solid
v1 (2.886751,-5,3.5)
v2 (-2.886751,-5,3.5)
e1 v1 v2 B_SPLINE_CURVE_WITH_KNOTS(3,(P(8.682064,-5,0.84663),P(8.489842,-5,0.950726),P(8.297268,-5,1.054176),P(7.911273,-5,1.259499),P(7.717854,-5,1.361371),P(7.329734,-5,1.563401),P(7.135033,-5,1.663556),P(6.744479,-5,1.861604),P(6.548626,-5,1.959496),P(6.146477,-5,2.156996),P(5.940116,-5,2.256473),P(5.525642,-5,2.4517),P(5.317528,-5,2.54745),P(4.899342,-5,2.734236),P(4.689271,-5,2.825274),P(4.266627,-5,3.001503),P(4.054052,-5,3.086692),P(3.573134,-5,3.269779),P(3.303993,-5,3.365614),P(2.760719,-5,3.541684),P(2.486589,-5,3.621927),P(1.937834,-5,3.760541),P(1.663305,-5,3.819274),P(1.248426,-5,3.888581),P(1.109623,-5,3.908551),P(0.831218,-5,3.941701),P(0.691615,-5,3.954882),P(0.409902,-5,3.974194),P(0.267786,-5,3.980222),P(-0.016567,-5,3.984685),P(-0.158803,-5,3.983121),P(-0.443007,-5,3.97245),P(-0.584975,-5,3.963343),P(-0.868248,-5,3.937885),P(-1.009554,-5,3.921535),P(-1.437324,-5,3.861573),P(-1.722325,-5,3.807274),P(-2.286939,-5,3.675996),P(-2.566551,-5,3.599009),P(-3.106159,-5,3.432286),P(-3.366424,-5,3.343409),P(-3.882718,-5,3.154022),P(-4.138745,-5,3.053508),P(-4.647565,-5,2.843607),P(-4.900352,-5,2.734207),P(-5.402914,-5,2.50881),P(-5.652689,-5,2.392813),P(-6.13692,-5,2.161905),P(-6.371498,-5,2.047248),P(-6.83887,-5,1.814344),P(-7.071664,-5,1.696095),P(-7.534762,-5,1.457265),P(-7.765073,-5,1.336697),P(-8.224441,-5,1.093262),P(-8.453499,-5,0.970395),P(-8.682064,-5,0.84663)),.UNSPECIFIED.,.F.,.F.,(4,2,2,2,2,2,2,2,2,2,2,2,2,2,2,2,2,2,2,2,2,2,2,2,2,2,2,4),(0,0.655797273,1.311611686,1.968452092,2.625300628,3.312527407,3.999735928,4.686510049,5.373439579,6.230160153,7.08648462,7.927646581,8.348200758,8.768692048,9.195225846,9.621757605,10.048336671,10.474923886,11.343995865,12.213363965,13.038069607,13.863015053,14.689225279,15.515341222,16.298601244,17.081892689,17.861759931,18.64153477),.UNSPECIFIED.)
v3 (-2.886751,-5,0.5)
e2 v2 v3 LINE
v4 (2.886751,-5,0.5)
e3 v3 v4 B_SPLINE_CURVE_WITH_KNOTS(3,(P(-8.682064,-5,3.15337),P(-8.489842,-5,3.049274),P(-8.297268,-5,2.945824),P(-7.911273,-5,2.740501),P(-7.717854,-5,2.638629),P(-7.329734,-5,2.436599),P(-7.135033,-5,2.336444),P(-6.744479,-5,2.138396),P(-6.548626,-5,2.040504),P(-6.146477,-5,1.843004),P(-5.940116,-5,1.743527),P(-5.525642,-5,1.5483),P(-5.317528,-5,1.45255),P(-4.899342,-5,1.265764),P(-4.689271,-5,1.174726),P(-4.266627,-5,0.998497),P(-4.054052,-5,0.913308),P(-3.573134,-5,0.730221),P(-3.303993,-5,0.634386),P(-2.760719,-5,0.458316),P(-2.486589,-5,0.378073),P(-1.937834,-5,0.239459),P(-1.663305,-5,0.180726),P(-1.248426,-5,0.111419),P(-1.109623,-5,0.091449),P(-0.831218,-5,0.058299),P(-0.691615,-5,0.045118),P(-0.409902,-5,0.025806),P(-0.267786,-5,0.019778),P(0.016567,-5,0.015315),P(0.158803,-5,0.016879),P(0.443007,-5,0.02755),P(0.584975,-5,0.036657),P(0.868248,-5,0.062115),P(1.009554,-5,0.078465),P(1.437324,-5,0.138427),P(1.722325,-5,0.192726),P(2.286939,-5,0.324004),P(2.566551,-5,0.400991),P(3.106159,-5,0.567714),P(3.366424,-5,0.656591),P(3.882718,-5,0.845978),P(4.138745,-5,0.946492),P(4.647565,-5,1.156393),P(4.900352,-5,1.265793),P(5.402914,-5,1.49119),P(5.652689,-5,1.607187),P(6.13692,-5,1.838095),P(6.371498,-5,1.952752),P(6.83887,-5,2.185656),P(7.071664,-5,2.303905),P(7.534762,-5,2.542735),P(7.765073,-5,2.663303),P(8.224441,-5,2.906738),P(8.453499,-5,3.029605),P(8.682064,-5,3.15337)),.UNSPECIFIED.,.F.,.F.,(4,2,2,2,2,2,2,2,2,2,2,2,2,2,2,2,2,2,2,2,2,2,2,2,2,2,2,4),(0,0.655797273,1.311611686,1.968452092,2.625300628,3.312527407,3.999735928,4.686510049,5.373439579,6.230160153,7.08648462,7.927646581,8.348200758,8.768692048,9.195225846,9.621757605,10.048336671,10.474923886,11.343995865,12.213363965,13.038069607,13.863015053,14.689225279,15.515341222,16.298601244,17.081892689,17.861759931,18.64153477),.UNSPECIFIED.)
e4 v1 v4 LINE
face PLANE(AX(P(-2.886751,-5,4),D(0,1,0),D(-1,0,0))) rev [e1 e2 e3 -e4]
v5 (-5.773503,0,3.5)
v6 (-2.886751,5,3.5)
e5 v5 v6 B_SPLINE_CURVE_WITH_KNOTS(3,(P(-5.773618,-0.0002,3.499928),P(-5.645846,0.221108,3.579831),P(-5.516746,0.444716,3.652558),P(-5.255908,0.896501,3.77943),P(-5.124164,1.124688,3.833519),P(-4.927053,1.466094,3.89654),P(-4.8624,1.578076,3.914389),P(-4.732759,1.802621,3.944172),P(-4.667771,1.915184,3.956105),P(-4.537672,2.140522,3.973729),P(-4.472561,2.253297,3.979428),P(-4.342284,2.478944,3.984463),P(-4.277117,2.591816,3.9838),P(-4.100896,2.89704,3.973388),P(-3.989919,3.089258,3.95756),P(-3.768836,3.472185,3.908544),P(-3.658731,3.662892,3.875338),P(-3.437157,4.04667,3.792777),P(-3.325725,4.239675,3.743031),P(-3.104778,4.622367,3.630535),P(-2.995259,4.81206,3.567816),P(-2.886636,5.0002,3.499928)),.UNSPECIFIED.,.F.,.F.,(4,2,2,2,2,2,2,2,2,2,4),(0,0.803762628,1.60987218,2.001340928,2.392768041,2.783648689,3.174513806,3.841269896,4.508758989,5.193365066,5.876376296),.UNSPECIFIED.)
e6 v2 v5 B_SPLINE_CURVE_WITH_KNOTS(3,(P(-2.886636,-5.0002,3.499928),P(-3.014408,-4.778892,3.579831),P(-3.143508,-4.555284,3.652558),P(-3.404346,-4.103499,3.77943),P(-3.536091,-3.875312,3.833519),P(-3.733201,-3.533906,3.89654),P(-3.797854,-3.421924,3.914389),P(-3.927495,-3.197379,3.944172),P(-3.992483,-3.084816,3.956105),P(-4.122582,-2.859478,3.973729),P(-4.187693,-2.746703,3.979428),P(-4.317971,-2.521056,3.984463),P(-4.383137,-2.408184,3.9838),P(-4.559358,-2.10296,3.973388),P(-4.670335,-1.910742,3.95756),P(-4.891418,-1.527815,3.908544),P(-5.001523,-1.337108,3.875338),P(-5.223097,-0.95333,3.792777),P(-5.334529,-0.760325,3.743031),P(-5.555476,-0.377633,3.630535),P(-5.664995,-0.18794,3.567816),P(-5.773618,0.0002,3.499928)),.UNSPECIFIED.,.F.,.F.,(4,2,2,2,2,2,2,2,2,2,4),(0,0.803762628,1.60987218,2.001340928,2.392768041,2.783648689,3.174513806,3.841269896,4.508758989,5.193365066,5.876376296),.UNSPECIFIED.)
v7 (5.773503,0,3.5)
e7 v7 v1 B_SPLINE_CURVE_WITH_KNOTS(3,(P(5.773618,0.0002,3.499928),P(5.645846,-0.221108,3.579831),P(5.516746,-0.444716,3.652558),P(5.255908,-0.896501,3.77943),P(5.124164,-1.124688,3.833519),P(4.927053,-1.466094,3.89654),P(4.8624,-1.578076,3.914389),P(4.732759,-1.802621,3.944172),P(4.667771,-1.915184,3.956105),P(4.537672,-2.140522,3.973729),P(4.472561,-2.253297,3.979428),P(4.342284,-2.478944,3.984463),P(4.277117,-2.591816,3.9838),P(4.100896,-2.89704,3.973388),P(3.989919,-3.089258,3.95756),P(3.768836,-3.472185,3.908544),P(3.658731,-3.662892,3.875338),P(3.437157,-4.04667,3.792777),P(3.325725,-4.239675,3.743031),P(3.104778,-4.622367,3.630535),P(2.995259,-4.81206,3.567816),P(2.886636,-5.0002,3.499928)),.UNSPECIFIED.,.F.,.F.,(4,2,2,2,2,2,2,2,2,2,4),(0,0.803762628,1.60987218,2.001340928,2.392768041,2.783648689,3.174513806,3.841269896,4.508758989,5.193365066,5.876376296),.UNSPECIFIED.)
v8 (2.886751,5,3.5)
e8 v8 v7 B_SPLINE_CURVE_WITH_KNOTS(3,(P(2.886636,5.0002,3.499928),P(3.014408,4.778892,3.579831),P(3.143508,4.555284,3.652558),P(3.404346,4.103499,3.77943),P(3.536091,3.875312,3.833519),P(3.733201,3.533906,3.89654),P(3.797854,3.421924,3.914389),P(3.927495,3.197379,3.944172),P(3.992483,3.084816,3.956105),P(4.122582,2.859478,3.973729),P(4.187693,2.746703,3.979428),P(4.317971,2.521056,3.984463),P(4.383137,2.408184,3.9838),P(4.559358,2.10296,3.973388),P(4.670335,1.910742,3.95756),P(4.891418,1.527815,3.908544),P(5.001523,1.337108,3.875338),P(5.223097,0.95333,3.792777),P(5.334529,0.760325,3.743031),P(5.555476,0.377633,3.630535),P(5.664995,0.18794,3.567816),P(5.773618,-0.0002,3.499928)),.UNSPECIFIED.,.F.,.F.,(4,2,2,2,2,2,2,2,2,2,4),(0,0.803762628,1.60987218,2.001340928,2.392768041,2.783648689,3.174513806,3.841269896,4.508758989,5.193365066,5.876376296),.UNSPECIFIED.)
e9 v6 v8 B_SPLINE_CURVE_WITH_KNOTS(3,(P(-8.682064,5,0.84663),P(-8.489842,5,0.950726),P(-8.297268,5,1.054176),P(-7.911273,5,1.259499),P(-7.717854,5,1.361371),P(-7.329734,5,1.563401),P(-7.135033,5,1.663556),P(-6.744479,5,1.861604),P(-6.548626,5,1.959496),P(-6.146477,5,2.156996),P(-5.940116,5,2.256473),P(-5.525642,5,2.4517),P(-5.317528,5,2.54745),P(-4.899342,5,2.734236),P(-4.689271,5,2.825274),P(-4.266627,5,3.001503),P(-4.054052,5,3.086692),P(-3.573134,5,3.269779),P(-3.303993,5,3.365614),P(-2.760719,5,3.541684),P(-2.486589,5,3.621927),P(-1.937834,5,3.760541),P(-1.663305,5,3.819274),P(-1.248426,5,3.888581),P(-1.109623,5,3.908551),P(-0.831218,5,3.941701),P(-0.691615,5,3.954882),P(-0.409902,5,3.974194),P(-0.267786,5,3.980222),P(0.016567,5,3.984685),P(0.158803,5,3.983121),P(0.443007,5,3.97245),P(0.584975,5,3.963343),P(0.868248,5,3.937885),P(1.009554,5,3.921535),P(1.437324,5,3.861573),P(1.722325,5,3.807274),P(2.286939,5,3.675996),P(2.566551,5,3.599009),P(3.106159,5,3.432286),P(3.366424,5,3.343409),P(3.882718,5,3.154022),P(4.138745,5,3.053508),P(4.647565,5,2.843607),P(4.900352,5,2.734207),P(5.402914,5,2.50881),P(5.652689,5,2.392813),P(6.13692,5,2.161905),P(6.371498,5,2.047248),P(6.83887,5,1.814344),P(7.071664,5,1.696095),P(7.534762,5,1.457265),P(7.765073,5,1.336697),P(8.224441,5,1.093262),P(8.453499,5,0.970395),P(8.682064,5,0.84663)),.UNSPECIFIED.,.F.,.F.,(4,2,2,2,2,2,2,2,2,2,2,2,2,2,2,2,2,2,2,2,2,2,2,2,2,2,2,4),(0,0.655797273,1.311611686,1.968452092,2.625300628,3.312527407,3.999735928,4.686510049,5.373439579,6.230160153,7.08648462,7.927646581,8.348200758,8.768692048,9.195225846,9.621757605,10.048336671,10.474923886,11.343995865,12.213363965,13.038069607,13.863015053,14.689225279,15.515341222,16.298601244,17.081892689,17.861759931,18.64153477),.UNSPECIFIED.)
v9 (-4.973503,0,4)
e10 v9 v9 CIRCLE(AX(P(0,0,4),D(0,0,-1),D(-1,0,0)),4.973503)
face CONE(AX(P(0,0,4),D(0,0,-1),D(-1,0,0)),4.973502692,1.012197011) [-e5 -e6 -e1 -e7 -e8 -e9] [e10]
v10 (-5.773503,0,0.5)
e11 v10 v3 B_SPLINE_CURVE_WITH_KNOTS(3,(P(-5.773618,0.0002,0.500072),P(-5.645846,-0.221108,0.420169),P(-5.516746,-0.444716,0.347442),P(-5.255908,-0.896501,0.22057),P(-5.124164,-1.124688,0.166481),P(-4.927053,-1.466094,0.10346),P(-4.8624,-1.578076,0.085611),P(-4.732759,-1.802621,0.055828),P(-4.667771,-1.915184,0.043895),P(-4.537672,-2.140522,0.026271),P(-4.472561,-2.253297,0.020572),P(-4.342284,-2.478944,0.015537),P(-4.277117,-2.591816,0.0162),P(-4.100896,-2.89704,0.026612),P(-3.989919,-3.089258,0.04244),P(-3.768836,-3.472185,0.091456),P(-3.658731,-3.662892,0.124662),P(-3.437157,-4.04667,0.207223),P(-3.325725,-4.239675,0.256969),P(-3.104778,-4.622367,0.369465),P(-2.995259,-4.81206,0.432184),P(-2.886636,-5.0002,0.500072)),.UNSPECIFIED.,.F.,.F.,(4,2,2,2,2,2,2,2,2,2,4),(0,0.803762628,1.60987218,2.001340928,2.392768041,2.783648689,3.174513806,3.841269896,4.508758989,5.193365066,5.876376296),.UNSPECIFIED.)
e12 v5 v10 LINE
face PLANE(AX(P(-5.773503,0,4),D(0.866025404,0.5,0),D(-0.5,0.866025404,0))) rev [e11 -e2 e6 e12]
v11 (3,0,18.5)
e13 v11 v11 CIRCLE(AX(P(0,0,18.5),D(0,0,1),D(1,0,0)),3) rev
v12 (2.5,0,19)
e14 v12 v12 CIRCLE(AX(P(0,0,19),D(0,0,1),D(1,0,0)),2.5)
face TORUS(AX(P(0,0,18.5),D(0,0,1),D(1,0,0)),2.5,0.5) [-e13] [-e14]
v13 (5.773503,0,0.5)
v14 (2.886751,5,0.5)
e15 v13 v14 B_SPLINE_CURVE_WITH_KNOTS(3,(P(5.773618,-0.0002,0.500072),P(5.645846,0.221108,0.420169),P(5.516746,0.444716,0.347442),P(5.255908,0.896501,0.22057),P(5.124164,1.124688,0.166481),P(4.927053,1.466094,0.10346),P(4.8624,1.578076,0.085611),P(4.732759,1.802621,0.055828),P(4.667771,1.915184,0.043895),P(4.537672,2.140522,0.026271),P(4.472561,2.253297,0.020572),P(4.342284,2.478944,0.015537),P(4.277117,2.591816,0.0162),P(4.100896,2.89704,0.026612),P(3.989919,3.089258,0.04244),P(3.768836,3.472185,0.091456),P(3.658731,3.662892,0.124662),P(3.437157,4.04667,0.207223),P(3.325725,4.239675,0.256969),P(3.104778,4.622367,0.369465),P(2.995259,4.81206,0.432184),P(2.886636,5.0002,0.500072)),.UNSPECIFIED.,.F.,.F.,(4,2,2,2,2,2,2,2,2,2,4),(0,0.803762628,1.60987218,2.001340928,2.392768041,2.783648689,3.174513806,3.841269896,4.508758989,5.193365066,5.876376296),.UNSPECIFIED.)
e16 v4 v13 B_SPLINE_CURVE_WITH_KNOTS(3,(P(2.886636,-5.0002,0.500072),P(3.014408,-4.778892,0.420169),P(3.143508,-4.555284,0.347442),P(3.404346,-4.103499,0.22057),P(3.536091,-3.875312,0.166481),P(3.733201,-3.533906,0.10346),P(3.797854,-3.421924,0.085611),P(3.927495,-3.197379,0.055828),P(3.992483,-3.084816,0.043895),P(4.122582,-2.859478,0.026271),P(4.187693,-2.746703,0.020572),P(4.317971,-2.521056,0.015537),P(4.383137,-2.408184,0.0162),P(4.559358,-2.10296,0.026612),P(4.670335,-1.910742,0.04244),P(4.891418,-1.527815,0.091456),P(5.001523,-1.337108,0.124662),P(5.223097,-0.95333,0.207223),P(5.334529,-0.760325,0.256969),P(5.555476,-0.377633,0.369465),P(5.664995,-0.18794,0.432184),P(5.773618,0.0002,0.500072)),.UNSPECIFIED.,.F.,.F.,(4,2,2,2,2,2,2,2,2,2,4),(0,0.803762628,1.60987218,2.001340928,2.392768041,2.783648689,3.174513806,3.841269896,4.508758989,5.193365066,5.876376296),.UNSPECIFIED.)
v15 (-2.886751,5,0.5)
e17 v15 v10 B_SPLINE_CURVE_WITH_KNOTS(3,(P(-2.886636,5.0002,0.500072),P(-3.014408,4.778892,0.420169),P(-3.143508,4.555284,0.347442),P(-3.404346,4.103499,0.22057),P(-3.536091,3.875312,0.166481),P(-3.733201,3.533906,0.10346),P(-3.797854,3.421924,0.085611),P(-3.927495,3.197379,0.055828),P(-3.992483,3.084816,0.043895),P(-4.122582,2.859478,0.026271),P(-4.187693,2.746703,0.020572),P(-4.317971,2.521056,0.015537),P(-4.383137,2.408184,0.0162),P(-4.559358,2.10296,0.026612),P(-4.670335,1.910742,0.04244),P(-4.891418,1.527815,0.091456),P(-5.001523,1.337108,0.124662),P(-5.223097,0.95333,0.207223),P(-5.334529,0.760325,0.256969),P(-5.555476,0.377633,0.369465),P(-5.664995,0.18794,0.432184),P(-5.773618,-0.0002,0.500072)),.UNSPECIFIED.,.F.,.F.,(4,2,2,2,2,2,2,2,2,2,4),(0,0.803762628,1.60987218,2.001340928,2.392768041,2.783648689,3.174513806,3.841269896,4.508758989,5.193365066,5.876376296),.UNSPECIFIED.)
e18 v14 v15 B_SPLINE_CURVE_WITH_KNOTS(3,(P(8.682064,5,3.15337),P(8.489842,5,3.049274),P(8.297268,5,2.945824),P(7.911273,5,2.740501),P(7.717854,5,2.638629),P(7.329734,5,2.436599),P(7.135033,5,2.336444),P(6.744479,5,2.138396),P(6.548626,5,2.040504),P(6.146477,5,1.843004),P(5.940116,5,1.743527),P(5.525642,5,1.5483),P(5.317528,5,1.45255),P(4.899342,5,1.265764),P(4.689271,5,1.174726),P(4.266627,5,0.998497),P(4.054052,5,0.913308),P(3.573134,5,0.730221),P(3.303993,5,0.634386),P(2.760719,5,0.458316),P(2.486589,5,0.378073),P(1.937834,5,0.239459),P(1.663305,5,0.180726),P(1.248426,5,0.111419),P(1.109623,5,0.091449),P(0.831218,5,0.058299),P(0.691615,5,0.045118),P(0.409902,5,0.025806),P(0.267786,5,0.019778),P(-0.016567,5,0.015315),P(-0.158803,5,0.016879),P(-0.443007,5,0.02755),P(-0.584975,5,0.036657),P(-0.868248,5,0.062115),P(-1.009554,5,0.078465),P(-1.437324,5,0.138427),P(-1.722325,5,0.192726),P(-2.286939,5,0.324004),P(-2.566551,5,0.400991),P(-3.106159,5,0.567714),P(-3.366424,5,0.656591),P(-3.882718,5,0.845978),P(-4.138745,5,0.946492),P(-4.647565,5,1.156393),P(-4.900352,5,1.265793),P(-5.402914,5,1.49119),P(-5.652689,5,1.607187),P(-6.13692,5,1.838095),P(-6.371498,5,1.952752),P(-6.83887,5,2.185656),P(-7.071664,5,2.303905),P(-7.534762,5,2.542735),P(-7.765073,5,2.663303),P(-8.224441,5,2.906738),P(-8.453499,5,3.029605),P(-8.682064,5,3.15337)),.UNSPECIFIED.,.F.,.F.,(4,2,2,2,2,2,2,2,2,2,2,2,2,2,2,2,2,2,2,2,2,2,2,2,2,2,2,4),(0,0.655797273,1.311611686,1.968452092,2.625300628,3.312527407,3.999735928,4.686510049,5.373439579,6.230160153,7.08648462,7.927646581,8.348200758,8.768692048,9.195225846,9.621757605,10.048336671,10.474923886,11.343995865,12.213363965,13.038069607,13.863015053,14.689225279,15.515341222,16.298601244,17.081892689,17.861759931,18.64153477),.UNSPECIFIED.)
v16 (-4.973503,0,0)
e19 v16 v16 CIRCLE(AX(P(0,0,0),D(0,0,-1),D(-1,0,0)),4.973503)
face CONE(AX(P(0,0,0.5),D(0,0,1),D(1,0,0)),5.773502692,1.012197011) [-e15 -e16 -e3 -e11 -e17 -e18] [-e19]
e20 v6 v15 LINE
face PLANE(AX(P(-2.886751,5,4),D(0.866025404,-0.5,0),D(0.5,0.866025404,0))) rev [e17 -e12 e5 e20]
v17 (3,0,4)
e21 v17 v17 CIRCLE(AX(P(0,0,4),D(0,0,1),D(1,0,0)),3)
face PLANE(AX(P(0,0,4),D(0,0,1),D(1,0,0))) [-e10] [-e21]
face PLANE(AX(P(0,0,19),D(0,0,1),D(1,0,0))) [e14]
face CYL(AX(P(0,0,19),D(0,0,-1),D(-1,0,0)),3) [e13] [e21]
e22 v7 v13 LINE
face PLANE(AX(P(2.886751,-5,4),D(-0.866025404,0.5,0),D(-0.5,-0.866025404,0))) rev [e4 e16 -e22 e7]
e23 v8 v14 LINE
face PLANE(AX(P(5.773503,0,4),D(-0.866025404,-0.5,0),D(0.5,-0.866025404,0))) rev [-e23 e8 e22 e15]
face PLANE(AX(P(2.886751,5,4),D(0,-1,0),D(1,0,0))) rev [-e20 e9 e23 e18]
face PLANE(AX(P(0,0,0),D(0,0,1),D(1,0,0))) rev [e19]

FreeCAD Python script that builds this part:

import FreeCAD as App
import Part
import Sketcher
Q = App.Units.Quantity


def edges_at(feature, points):
    """Names of the edges that pass closest to the given points."""
    edges = feature.Shape.Edges
    near = lambda p: min(range(len(edges)), key=lambda i: edges[i].distToShape(Part.Vertex(*p))[0])
    return sorted({f"Edge{near(p) + 1}" for p in points})


def add_polygon(sketch, points):
    """Adds a closed chain of lines whose ends are joined by coincident constraints."""
    first, n = sketch.GeometryCount, len(points)
    for a, b in zip(points, points[1:] + points[:1]):
        sketch.addGeometry(Part.LineSegment(App.Vector(*a, 0), App.Vector(*b, 0)), False)
    for i in range(n):
        sketch.addConstraint(Sketcher.Constraint("Coincident", first + i, 2, first + (i + 1) % n, 1))

doc = App.newDocument("Part")
params = doc.addObject("Spreadsheet::Sheet", "Params")
for row, (alias, value) in enumerate([
    ("pad1_length", "4 mm"),
    ("sketch2_diameter", "6 mm"),
    ("pad2_length", "15 mm"),
    ("sketch3_width", "0.8 mm"),
    ("sketch3_height", "0.5 mm"),
    ("groove_angle", "360 deg"),
    ("fillet_radius", "0.5 mm"),
], start=1):
    params.set(f"A{row}", alias)
    params.set(f"B{row}", "=" + value)
    params.setAlias(f"B{row}", alias)

body = doc.addObject("PartDesign::Body", "Body")

# Sketch on XY plane
sketch1 = body.newObject("Sketcher::SketchObject", "Sketch")
sketch1.AttachmentSupport = (doc.getObject("XY_Plane"), [""])
sketch1.MapMode = "FlatFace"
add_polygon(sketch1, [(5.773503, 0), (2.886751, 5), (-2.886751, 5), (-5.773503, 0), (-2.886751, -5), (2.886751, -5)])  # lines 0-5
sketch1.addConstraint([
    Sketcher.Constraint("Horizontal", 1),
    Sketcher.Constraint("Horizontal", 4),
    Sketcher.Constraint("Symmetric", 0, 2, 3, 2, -1, 1),
    Sketcher.Constraint("Symmetric", 2, 2, 5, 2, -1, 1),
    Sketcher.Constraint("PointOnObject", 2, 2, -1),
    Sketcher.Constraint("Parallel", 2, 5),
    Sketcher.Constraint("Vertical", 1, 2, 3, 2),
    Sketcher.Constraint("Angle", 0, Q("120 deg")),
    Sketcher.Constraint("DistanceY", -1, 1, 0, 2, 5.0),
    Sketcher.Constraint("DistanceX", 1, 2, 1, 1, 5.773503),
])
pad1 = body.newObject("PartDesign::Pad", "Pad")
pad1.Profile = sketch1
pad1.setExpression("Length", "Params.pad1_length")

# Sketch on XY plane
sketch2 = body.newObject("Sketcher::SketchObject", "Sketch001")
sketch2.AttachmentSupport = (doc.getObject("XY_Plane"), [""])
sketch2.MapMode = "FlatFace"
sketch2.AttachmentOffset = App.Placement(App.Vector(0, 0, 4), App.Rotation())
sketch2.addGeometry(Part.Circle(App.Vector(0, 0, 0), App.Vector(0, 0, 1), 3), False)
sketch2.addConstraint([
    Sketcher.Constraint("Coincident", 0, 3, -1, 1),
    Sketcher.Constraint("Diameter", 0, 6.0),
])
sketch2.setExpression("Constraints[1]", "Params.sketch2_diameter")
pad2 = body.newObject("PartDesign::Pad", "Pad001")
pad2.Profile = sketch2
pad2.setExpression("Length", "Params.pad2_length")

# Sketch on XZ plane
sketch3 = body.newObject("Sketcher::SketchObject", "Sketch002")
sketch3.AttachmentSupport = (doc.getObject("XZ_Plane"), [""])
sketch3.MapMode = "FlatFace"
add_polygon(sketch3, [(-4.973503, 0), (-5.773503, 0), (-5.773503, 0.5)])  # lines 0-2
add_polygon(sketch3, [(-5.773503, 3.5), (-5.773503, 4), (-4.973503, 4)])  # lines 3-5
sketch3.addConstraint([
    Sketcher.Constraint("Horizontal", 0),
    Sketcher.Constraint("Vertical", 1),
    Sketcher.Constraint("Vertical", 3),
    Sketcher.Constraint("Horizontal", 4),
    Sketcher.Constraint("PointOnObject", 0, 2, -1),
    Sketcher.Constraint("Vertical", 1, 2, 3, 2),
    Sketcher.Constraint("Vertical", 2, 2, 4, 2),
    Sketcher.Constraint("Equal", 1, 3),
    Sketcher.Constraint("DistanceX", 0, 2, 0, 1, 0.8),
    Sketcher.Constraint("DistanceY", 1, 1, 1, 2, 0.5),
    Sketcher.Constraint("DistanceY", -1, 1, 3, 2, 4.0),
    Sketcher.Constraint("DistanceX", 0, 2, -1, 1, 5.773503),
])
sketch3.setExpression("Constraints[14]", "Params.sketch3_width")
sketch3.setExpression("Constraints[15]", "Params.sketch3_height")
groove = body.newObject("PartDesign::Groove", "Groove")
groove.Profile = sketch3
groove.ReferenceAxis = (sketch3, ["V_Axis"])
groove.setExpression("Angle", "Params.groove_angle")
doc.recompute()

fillet = body.newObject("PartDesign::Fillet", "Fillet")
fillet.Base = (groove, edges_at(groove, [(-3, 0, 19)]))
fillet.setExpression("Radius", "Params.fillet_radius")

doc.recompute()
